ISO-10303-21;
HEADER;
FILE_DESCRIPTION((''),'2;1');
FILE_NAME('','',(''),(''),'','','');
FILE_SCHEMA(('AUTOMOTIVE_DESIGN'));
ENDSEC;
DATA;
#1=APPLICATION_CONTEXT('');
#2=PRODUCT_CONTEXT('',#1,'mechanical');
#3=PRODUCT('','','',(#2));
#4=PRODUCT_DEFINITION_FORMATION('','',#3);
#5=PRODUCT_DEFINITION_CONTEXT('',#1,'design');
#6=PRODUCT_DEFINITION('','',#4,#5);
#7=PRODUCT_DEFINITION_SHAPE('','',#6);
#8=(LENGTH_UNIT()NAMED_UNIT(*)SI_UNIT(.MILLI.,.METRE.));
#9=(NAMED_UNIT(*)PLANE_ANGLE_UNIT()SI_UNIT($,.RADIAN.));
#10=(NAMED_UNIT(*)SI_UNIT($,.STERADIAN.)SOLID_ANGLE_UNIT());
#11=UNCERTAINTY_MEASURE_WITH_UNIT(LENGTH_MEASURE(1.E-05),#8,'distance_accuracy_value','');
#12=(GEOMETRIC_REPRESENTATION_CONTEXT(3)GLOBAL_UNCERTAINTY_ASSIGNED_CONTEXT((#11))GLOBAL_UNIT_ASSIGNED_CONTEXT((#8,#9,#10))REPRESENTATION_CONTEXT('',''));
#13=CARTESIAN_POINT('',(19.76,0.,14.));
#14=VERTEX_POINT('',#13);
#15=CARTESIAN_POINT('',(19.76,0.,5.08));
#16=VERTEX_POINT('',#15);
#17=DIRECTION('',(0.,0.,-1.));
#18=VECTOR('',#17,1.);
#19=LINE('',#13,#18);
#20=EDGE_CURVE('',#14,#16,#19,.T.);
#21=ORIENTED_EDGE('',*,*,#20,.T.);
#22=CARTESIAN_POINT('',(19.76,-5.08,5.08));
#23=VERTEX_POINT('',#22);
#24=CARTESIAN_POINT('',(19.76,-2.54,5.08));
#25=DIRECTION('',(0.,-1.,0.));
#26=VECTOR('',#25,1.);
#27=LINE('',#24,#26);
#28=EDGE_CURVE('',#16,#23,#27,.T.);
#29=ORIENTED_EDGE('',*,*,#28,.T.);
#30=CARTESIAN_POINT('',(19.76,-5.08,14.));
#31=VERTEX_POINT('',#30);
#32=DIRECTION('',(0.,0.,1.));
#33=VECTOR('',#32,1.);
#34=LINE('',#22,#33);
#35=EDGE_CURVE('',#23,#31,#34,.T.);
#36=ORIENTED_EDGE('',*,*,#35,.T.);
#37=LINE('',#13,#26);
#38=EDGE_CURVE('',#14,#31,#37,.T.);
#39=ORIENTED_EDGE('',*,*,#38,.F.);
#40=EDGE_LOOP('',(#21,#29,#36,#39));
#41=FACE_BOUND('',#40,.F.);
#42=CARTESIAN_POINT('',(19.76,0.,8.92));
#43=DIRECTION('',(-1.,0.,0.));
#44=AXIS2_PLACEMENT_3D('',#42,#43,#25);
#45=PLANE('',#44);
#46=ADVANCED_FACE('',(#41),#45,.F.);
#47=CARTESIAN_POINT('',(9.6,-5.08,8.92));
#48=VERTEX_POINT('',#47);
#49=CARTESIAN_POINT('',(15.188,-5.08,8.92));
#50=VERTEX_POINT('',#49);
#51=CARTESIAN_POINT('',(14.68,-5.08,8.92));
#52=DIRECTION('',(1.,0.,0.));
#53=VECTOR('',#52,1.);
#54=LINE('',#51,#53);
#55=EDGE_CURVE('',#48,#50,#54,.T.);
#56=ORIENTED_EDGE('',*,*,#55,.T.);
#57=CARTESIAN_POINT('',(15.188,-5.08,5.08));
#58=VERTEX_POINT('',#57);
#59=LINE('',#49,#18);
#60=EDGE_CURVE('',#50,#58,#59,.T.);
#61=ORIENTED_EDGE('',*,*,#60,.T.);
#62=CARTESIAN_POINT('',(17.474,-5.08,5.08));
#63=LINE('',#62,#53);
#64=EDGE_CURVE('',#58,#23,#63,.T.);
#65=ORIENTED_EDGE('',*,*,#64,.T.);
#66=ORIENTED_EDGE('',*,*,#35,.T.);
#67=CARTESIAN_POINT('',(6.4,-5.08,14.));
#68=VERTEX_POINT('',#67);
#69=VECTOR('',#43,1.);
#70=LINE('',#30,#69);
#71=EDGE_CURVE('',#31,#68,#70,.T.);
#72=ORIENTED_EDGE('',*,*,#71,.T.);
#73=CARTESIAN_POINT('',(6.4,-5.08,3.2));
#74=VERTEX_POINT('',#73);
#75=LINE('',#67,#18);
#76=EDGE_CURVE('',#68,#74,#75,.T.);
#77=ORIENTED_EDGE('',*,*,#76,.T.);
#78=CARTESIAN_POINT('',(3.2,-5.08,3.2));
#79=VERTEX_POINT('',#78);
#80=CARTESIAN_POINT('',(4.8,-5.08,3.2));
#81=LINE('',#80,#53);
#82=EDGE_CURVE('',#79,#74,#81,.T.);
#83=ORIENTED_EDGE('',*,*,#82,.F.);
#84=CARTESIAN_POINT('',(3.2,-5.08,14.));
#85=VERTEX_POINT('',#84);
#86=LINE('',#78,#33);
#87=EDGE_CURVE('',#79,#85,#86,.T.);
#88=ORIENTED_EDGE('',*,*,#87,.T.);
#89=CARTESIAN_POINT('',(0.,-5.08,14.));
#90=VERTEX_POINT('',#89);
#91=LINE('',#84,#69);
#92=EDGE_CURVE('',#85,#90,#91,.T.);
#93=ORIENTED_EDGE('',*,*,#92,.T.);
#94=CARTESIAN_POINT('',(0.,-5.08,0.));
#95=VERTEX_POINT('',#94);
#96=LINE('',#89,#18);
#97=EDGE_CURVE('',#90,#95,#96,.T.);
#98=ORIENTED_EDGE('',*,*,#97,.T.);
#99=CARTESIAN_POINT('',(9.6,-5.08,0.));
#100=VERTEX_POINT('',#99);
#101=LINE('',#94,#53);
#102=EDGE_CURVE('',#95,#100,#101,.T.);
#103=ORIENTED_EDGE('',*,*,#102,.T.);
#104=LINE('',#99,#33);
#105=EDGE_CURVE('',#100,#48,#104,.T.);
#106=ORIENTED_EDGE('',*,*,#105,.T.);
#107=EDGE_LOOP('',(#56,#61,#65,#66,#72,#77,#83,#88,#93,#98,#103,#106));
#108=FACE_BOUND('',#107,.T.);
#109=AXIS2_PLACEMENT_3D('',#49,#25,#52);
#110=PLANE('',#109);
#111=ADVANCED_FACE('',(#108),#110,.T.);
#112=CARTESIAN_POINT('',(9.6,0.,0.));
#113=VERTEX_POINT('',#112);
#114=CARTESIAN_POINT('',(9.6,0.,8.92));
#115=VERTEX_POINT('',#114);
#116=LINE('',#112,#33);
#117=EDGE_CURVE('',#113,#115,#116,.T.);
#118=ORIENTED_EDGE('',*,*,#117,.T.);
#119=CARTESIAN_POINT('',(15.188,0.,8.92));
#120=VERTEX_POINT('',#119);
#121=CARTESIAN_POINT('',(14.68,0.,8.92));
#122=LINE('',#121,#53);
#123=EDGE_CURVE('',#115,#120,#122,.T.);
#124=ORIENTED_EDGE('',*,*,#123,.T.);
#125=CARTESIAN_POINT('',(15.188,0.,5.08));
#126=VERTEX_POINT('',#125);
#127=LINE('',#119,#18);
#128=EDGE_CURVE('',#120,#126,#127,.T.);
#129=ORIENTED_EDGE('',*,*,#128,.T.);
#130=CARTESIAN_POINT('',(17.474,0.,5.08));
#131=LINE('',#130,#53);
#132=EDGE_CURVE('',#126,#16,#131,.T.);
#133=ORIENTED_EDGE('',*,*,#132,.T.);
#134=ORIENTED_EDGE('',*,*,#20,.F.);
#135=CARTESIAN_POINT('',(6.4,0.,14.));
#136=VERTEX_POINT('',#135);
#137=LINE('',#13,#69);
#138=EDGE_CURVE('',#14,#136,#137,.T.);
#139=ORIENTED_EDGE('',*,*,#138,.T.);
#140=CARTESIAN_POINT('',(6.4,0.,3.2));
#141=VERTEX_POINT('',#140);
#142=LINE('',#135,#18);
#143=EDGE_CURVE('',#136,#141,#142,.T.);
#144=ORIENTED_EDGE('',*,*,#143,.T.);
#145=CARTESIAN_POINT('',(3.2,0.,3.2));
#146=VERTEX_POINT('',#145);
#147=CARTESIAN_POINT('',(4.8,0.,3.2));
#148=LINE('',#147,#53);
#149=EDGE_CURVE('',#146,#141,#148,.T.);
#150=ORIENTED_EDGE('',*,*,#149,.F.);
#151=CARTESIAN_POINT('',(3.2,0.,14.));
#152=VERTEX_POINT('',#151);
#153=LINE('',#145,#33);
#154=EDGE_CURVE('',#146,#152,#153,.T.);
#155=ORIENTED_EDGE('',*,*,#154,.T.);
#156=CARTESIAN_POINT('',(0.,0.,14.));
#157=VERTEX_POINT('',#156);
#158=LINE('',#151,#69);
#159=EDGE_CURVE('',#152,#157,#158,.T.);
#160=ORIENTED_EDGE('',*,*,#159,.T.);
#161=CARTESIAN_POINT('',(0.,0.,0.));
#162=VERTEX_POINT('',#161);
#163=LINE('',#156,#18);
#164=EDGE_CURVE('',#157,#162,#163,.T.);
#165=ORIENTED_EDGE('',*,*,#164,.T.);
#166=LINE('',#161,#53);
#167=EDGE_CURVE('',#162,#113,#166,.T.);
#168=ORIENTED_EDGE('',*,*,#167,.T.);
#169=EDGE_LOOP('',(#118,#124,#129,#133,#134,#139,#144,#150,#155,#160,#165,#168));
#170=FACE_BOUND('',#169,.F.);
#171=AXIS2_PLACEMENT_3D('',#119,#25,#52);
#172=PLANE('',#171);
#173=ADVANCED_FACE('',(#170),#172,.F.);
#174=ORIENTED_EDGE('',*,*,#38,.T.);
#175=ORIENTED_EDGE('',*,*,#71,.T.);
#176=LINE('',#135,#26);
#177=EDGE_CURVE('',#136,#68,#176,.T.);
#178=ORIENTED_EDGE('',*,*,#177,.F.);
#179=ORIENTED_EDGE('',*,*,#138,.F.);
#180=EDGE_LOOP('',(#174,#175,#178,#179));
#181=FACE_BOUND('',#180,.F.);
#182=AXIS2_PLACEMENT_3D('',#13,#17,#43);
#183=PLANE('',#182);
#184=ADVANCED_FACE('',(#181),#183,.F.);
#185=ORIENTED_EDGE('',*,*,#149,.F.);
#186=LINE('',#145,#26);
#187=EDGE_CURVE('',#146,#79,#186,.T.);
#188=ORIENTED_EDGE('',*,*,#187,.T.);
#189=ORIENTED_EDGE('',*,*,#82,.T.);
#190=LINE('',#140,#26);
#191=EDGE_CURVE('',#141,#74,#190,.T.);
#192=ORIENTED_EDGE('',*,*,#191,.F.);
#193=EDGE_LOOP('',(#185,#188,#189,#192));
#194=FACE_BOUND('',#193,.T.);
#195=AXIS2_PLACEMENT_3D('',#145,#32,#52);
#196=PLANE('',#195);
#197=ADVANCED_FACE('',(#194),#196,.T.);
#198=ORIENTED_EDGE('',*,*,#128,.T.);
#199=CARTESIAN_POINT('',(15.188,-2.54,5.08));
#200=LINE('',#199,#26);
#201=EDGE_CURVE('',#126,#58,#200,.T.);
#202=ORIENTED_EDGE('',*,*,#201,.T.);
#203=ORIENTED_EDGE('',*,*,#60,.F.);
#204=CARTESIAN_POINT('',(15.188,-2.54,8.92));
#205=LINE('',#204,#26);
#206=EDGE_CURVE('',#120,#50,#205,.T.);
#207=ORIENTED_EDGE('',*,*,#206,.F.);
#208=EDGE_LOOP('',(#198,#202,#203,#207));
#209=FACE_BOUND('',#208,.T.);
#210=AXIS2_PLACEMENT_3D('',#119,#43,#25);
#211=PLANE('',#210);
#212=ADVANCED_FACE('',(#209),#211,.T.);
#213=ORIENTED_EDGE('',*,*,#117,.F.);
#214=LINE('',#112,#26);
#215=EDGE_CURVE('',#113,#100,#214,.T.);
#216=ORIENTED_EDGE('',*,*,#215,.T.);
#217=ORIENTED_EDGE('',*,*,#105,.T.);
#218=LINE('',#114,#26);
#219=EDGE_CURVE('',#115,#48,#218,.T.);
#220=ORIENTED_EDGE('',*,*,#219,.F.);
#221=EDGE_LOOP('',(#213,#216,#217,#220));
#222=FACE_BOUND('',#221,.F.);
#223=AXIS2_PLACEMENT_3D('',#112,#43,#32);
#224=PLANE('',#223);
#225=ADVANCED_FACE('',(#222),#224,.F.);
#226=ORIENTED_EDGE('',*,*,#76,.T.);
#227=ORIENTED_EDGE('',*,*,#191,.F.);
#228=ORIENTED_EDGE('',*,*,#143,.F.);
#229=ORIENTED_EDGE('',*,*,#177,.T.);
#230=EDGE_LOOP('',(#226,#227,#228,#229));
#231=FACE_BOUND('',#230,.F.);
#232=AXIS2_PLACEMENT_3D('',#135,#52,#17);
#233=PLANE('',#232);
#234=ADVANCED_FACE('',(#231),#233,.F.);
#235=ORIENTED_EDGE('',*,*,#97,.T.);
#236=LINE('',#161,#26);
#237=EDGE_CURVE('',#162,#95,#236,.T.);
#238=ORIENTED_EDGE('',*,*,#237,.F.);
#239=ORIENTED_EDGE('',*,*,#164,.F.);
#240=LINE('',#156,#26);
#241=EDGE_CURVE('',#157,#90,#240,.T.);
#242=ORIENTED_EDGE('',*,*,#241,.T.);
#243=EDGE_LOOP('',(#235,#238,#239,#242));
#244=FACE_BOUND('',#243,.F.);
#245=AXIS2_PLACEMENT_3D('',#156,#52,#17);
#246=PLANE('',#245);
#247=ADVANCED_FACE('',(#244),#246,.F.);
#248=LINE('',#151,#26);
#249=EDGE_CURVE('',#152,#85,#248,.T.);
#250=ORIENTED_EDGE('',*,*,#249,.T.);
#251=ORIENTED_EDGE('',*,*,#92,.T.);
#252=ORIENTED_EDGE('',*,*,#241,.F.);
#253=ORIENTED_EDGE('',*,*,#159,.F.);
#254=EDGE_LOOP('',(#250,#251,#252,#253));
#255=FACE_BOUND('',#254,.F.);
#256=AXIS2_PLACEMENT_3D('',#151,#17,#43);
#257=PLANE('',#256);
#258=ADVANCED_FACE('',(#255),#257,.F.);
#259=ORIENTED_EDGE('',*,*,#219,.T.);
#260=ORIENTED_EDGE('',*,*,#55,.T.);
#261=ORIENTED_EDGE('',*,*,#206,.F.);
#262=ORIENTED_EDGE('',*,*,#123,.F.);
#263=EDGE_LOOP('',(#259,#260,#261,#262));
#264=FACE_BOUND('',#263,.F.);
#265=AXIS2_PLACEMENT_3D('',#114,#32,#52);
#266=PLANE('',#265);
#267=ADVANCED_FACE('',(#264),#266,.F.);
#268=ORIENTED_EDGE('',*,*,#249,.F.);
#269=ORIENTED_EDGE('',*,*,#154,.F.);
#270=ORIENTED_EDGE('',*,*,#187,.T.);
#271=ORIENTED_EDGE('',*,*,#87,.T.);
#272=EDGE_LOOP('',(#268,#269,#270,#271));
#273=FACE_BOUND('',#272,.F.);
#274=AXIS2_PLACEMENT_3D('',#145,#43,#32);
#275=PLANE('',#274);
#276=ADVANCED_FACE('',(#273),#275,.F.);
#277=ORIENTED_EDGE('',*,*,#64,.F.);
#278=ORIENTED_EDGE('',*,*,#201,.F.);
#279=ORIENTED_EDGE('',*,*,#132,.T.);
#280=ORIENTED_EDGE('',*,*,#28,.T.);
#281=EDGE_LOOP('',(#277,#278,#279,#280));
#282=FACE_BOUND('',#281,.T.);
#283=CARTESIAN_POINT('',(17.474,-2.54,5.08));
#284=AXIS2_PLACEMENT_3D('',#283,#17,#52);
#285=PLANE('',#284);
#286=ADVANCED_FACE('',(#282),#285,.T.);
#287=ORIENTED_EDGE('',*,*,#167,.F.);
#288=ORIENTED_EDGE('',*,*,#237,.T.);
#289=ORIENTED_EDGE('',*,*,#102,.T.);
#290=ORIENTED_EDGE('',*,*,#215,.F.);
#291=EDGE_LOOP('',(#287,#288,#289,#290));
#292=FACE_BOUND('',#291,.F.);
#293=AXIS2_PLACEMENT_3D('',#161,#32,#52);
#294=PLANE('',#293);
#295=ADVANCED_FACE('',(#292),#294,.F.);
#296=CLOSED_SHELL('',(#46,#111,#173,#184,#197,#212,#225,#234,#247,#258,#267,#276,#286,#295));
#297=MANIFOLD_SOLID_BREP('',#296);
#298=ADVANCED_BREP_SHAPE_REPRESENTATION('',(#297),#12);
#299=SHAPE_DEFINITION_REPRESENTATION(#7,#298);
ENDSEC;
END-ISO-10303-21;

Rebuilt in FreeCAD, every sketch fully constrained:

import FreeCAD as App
import Part
import Sketcher

V = App.Vector


def add_polygon(sketch, points):
    """Adds a closed chain of lines whose ends are joined by coincident constraints."""
    first, n = sketch.GeometryCount, len(points)
    for a, b in zip(points, points[1:] + points[:1]):
        sketch.addGeometry(Part.LineSegment(App.Vector(*a, 0), App.Vector(*b, 0)), False)
    for i in range(n):
        sketch.addConstraint(Sketcher.Constraint("Coincident", first + i, 2, first + (i + 1) % n, 1))

doc = App.newDocument("Part")
body = doc.addObject("PartDesign::Body", "Body")

# Sketch on XZ plane
sketch1 = body.newObject("Sketcher::SketchObject", "Sketch")
sketch1.AttachmentSupport = (doc.getObject("XZ_Plane"), [""])
sketch1.MapMode = "FlatFace"
add_polygon(sketch1, [(9.6, 8.9), (19.8, 8.9), (19.8, 14), (6.4, 14), (6.4, 3.2), (3.2, 3.2), (3.2, 14), (0, 14), (0, 0), (9.6, 0)])  # lines 0-9
sketch1.addConstraint([
    Sketcher.Constraint("Horizontal", 0),
    Sketcher.Constraint("Vertical", 1),
    Sketcher.Constraint("Horizontal", 2),
    Sketcher.Constraint("Vertical", 3),
    Sketcher.Constraint("Horizontal", 4),
    Sketcher.Constraint("Vertical", 5),
    Sketcher.Constraint("Horizontal", 6),
    Sketcher.Constraint("Vertical", 7),
    Sketcher.Constraint("Horizontal", 8),
    Sketcher.Constraint("Vertical", 9),
    Sketcher.Constraint("Coincident", 7, 2, -1, 1),
    Sketcher.Constraint("Horizontal", 2, 2, 5, 2),
    Sketcher.Constraint("Equal", 4, 6),
    Sketcher.Constraint("DistanceY", 7, 2, 7, 1, 14.0),
    Sketcher.Constraint("DistanceX", 4, 2, 4, 1, 3.2),
    Sketcher.Constraint("DistanceX", 8, 1, 8, 2, 9.6),
    Sketcher.Constraint("DistanceY", 3, 2, 3, 1, 10.8),
    Sketcher.Constraint("DistanceX", 0, 1, 0, 2, 10.16),
    Sketcher.Constraint("DistanceY", 1, 1, 1, 2, 5.08),
])
pad1 = body.newObject("PartDesign::Pad", "Pad")
pad1.Profile = sketch1
pad1.Length = 5.08

# Sketch on XY plane
sketch2 = body.newObject("Sketcher::SketchObject", "Sketch001")
sketch2.AttachmentSupport = (doc.getObject("XY_Plane"), [""])
sketch2.MapMode = "FlatFace"
sketch2.AttachmentOffset = App.Placement(V(0, 0, 8.92), App.Rotation())
add_polygon(sketch2, [(15.2, -5.1), (15.2, 0), (19.8, 0), (19.8, -5.1)])  # lines 0-3
sketch2.addConstraint([
    Sketcher.Constraint("Vertical", 0),
    Sketcher.Constraint("Horizontal", 1),
    Sketcher.Constraint("Vertical", 2),
    Sketcher.Constraint("Horizontal", 3),
    Sketcher.Constraint("PointOnObject", 0, 2, -1),
    Sketcher.Constraint("DistanceY", 0, 1, 0, 2, 5.08),
    Sketcher.Constraint("DistanceX", 1, 1, 1, 2, 4.572),
    Sketcher.Constraint("DistanceX", -1, 1, 1, 2, 19.76),
])
pad2 = body.newObject("PartDesign::Pad", "Pad001")
pad2.Profile = sketch2
pad2.Length = 3.84
pad2.Reversed = True

doc.recompute()
